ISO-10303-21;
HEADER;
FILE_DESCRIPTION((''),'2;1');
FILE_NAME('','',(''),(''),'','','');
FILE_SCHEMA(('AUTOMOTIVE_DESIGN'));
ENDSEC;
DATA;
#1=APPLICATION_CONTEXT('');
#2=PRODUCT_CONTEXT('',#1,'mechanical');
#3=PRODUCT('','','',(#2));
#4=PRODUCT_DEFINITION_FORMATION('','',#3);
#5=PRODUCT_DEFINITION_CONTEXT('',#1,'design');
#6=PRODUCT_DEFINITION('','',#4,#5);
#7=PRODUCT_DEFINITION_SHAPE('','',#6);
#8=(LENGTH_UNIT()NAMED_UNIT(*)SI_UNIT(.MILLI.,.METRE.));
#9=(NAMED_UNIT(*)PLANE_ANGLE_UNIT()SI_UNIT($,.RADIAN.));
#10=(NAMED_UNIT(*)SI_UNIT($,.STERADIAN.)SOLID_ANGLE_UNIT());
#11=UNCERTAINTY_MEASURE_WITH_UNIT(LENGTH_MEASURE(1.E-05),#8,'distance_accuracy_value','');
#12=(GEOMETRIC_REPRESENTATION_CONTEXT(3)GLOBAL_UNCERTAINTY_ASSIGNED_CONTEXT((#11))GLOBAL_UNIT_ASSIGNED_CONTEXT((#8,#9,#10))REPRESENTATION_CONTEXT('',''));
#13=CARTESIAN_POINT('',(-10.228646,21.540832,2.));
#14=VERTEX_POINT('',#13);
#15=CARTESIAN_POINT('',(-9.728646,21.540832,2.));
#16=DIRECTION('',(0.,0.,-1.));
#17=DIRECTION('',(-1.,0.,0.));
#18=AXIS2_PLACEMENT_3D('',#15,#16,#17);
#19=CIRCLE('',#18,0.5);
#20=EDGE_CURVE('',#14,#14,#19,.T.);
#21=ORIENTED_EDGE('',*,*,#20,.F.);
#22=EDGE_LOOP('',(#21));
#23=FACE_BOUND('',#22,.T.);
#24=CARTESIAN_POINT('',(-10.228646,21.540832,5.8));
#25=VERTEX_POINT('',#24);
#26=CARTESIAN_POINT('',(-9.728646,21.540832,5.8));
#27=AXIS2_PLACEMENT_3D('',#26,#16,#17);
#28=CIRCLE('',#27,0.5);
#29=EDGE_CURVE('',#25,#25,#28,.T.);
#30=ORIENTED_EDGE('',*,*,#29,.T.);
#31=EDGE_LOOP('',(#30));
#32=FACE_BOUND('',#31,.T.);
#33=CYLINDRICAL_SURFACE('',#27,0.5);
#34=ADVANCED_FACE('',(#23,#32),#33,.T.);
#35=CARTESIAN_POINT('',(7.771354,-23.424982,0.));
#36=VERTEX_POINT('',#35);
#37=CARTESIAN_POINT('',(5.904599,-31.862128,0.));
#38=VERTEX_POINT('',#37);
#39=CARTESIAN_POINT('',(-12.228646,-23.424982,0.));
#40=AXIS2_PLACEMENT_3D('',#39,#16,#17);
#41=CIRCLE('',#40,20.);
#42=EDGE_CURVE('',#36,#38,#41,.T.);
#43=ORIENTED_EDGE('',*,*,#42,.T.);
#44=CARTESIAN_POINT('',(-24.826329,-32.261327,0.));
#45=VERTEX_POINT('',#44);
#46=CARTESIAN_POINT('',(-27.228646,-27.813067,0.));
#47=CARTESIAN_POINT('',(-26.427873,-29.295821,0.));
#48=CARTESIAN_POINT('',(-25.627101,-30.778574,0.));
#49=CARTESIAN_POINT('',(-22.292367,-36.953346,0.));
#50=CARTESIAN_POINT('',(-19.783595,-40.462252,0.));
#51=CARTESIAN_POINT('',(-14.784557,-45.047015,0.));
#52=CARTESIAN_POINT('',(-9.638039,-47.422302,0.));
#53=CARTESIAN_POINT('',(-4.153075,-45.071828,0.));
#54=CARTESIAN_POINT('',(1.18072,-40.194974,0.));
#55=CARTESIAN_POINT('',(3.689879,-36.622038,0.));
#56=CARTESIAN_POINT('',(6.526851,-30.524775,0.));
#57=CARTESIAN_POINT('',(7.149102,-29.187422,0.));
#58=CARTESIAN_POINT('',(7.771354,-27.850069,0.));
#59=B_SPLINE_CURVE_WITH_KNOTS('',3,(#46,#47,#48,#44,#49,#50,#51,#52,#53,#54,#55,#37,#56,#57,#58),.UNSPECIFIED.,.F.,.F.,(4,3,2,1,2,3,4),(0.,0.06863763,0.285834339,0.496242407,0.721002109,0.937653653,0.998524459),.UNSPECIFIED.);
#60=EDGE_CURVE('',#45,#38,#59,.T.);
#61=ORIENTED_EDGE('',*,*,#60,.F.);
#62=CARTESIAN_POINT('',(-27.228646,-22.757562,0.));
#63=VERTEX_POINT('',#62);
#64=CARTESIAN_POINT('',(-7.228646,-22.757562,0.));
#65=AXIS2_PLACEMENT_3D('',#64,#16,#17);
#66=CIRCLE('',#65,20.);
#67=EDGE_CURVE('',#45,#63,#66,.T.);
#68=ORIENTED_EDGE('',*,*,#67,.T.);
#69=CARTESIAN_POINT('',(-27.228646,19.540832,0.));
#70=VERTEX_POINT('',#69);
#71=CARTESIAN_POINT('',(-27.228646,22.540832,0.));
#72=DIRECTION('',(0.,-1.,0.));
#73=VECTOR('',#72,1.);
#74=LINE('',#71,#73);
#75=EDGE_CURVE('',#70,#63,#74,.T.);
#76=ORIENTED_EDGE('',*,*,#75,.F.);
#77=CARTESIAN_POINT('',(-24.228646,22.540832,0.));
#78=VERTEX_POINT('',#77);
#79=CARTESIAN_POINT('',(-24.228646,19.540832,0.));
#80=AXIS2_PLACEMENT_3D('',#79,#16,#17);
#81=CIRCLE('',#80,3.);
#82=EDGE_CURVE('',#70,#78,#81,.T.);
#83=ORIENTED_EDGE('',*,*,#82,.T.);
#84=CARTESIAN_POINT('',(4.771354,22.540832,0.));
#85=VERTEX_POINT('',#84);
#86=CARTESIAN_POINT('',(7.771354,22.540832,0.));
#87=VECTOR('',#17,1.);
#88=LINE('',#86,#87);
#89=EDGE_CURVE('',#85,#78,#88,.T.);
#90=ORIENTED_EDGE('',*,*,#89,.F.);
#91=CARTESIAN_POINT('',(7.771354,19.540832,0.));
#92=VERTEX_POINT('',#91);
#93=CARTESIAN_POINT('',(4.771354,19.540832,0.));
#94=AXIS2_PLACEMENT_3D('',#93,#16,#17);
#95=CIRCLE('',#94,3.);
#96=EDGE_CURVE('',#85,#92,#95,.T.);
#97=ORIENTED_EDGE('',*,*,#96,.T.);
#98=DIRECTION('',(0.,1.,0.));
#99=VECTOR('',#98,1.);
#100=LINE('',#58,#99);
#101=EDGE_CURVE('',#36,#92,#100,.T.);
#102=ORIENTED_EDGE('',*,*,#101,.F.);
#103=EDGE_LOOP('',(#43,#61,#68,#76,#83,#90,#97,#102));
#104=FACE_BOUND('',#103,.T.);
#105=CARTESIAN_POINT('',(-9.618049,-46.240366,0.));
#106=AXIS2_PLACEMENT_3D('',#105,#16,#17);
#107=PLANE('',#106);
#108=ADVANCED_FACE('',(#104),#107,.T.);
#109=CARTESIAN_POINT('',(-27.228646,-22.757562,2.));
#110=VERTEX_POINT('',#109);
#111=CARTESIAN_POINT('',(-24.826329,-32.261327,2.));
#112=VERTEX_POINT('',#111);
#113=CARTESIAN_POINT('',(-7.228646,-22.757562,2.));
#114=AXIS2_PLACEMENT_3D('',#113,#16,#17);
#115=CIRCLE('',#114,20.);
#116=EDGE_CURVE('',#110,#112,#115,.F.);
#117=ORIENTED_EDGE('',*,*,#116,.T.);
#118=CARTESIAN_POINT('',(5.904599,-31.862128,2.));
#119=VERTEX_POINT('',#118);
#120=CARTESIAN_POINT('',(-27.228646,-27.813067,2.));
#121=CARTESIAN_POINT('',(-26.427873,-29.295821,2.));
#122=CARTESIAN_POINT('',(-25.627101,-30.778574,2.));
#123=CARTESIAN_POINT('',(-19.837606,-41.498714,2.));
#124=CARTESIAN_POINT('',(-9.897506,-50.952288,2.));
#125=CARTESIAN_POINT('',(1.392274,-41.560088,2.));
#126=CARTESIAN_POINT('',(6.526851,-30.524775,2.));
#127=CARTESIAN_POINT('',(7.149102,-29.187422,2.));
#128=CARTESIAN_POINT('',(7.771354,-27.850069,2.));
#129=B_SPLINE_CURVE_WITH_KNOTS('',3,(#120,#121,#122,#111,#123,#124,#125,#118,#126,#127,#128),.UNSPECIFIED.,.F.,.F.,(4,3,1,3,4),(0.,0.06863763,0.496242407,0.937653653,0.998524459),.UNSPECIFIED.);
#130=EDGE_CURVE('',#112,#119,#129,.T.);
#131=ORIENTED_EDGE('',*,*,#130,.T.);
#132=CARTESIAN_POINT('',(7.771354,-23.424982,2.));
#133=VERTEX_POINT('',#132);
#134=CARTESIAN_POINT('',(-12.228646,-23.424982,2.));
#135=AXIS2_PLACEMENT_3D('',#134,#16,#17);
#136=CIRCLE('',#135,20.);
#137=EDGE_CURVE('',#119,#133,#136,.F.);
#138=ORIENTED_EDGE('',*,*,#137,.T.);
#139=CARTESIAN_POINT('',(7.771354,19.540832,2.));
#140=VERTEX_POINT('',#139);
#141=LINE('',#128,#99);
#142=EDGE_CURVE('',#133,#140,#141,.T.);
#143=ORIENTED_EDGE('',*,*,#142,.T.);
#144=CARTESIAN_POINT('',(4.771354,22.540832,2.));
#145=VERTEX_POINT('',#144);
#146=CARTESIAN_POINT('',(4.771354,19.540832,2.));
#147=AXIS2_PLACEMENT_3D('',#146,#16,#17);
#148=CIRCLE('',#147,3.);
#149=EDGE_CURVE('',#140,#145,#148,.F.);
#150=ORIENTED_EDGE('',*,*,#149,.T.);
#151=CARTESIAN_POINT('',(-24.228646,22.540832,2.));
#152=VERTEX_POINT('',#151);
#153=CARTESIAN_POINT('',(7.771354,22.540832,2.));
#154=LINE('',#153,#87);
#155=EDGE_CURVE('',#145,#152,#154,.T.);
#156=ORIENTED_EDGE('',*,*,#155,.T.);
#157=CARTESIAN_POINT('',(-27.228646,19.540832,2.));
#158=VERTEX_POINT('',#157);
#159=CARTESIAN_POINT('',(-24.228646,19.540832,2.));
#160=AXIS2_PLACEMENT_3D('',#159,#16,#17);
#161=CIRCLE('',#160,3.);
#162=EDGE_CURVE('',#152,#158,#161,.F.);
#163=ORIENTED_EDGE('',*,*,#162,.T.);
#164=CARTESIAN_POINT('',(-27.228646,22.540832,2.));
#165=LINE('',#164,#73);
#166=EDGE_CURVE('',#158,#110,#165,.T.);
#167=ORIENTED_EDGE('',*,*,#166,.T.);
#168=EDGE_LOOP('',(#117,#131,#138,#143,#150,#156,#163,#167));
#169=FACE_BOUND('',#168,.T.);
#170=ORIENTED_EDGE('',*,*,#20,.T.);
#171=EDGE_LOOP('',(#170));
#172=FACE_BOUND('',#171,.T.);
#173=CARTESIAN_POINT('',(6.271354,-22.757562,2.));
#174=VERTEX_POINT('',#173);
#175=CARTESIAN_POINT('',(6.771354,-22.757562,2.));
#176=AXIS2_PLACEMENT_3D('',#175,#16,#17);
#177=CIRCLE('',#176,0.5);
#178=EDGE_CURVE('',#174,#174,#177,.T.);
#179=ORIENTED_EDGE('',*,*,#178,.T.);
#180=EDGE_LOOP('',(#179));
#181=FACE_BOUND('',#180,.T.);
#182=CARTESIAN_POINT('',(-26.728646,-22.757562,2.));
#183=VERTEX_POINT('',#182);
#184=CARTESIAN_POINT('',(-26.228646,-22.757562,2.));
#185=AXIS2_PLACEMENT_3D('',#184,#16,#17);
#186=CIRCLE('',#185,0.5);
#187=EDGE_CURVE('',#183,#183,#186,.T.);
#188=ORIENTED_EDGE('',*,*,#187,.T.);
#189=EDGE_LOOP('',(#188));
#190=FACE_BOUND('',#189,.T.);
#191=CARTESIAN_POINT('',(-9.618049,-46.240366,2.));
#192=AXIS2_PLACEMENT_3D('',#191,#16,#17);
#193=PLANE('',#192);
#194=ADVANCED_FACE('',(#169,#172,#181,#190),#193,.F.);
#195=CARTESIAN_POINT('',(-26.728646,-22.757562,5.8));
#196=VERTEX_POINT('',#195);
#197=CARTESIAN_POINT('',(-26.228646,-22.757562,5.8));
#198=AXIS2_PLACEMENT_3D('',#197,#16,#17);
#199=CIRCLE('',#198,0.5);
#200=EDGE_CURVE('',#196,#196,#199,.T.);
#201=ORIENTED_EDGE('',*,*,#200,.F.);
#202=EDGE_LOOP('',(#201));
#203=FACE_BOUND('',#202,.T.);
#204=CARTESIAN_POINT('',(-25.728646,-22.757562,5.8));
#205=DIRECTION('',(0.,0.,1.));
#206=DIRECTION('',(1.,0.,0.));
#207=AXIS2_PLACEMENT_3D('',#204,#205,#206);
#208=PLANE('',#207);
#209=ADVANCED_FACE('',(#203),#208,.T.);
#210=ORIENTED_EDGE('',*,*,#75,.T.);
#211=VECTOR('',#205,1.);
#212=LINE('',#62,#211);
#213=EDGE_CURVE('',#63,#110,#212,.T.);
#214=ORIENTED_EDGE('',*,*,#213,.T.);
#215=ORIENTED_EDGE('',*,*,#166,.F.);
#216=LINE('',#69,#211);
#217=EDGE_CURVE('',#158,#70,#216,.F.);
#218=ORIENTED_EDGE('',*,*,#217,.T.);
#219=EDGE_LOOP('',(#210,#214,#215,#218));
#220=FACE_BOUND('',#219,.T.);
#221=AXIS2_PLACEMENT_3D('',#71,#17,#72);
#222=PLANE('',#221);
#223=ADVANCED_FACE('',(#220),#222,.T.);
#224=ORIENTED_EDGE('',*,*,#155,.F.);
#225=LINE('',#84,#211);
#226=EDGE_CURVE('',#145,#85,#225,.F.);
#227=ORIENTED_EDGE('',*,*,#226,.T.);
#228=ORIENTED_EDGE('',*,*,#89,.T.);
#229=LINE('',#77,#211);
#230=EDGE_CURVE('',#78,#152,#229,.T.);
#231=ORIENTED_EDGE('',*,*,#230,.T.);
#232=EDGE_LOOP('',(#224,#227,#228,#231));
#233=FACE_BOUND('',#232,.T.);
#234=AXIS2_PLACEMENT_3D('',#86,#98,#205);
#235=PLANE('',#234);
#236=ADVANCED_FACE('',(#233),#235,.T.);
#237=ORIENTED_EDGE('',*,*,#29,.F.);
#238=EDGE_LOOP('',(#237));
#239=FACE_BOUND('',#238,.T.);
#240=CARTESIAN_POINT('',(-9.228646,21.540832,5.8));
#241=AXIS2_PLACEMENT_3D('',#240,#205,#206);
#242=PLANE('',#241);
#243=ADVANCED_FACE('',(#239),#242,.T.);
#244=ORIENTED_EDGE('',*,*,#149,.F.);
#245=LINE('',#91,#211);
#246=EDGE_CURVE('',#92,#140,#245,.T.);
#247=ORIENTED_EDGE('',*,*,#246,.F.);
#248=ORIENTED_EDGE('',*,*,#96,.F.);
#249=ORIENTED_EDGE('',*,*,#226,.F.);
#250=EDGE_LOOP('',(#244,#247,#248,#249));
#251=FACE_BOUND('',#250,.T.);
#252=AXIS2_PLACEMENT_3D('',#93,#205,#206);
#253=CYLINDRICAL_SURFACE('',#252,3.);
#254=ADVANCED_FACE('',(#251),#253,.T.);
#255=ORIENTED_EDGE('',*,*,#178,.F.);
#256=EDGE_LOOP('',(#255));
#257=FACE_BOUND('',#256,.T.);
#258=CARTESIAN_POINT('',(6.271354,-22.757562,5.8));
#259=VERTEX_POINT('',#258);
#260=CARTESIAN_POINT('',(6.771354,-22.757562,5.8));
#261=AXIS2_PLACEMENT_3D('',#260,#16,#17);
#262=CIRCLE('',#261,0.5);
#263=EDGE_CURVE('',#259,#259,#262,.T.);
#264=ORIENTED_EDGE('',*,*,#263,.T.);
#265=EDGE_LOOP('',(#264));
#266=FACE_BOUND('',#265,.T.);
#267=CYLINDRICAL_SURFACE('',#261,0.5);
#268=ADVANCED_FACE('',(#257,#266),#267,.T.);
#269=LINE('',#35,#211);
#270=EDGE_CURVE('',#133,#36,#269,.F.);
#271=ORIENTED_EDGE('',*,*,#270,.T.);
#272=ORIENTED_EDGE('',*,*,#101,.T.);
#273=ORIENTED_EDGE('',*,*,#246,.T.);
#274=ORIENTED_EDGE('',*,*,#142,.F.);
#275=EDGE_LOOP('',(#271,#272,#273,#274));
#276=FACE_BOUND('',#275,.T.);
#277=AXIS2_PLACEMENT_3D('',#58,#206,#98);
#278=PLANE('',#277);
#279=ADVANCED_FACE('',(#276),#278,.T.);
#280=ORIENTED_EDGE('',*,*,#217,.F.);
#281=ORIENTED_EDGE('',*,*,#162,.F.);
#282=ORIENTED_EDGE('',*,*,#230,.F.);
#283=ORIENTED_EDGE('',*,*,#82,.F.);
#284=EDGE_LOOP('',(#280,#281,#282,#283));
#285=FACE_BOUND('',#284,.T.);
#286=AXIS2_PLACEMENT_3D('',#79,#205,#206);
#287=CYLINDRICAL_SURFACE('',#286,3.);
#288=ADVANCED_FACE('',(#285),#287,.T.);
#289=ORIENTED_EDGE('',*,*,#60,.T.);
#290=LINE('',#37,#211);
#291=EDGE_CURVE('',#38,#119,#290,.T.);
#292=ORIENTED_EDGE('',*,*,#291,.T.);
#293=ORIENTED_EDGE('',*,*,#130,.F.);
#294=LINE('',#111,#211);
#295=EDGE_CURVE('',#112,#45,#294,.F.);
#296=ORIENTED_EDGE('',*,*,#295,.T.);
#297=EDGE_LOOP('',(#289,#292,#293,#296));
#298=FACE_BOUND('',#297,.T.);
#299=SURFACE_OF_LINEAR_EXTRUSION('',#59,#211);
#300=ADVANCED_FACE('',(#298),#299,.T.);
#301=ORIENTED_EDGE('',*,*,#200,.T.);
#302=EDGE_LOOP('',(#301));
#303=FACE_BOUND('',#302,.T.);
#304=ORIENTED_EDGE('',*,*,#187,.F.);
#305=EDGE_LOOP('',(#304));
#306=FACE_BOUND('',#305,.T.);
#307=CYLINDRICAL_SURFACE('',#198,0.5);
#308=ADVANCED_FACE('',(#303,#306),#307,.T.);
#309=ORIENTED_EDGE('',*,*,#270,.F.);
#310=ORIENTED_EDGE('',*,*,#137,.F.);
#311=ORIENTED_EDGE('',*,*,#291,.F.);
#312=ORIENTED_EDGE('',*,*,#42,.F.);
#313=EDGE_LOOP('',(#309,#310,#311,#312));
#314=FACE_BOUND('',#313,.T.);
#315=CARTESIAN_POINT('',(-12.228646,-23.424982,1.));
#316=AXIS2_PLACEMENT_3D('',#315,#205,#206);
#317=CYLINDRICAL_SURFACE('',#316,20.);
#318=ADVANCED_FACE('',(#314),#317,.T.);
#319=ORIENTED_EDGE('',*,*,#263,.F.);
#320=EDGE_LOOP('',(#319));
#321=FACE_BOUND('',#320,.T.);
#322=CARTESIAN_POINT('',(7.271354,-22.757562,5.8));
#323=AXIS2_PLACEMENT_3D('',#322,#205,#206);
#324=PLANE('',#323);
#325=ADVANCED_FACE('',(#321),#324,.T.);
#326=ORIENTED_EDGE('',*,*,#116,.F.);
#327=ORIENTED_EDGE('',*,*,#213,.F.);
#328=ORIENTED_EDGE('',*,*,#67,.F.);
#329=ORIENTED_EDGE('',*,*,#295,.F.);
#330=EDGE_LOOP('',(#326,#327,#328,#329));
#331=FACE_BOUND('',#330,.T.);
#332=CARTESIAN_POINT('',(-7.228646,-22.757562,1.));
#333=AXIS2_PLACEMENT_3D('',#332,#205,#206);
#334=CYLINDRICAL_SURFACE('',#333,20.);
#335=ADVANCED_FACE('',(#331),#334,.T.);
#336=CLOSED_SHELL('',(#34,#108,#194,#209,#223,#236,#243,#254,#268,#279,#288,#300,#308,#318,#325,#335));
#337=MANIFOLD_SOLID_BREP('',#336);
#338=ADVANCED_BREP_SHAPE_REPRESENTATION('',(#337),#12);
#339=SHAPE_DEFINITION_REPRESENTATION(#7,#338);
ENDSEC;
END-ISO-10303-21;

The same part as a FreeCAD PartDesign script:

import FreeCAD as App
import Part
import Sketcher
from FreeCAD import Vector


def edges_at(feature, points):
    """Names of the edges that pass closest to the given points."""
    edges = feature.Shape.Edges
    near = lambda p: min(range(len(edges)), key=lambda i: edges[i].distToShape(Part.Vertex(*p))[0])
    return sorted({f"Edge{near(p) + 1}" for p in points})

doc = App.newDocument("Part")
body = doc.addObject("PartDesign::Body", "Body")

# Sketch on XY plane
sketch1 = body.newObject("Sketcher::SketchObject", "Sketch")
sketch1.AttachmentSupport = (doc.getObject("XY_Plane"), [""])
sketch1.MapMode = "FlatFace"
sketch1.AttachmentOffset = App.Placement(Vector(0, 0, 2), App.Rotation())
sketch1.addGeometry([
    Part.LineSegment(Vector(7.771354, 22.540832, 0), Vector(-27.228646, 22.540832, 0)),
    Part.LineSegment(Vector(-27.228646, 22.540832, 0), Vector(-27.228646, -27.813067, 0)),
    Part.BSplineCurve([Vector(-27.228646, -27.813067, 0), Vector(-26.427873, -29.295821, 0), Vector(-25.627101, -30.778574, 0), Vector(-24.826329, -32.261327, 0), Vector(-19.837606, -41.498714, 0), Vector(-9.897506, -50.952288, 0), Vector(1.392274, -41.560088, 0), Vector(5.904599, -31.862128, 0), Vector(6.526851, -30.524775, 0), Vector(7.149102, -29.187422, 0), Vector(7.771354, -27.850069, 0)], [4, 3, 1, 3, 4], [0, 0.06863763, 0.496242407, 0.937653653, 0.998524459], False, 3, [1, 1, 1, 1, 1, 1, 1, 1, 1, 1, 1], False),
    Part.LineSegment(Vector(7.771354, -27.850069, 0), Vector(7.771354, 22.540832, 0)),
], False)
sketch1.addConstraint([
    Sketcher.Constraint("Block", 2),
    Sketcher.Constraint("Coincident", 0, 2, 1, 1),
    Sketcher.Constraint("Coincident", 1, 2, 2, 1),
    Sketcher.Constraint("Coincident", 2, 2, 3, 1),
    Sketcher.Constraint("Coincident", 3, 2, 0, 1),
    Sketcher.Constraint("Horizontal", 0),
    Sketcher.Constraint("Vertical", 1),
    Sketcher.Constraint("Vertical", 3),
    Sketcher.Constraint("DistanceY", 1, 2, 1, 1, 50.3539),
])
pad1 = body.newObject("PartDesign::Pad", "Pad")
pad1.Profile = sketch1
pad1.Length = 2
pad1.Reversed = True

# Sketch on XZ plane
sketch2 = body.newObject("Sketcher::SketchObject", "Sketch001")
sketch2.AttachmentSupport = (doc.getObject("XZ_Plane"), [""])
sketch2.MapMode = "FlatFace"
sketch2.AttachmentOffset = App.Placement(Vector(0, 0, 22.757562), App.Rotation())
sketch2.addGeometry([
    Part.LineSegment(Vector(6.771354, 5.8, 0), Vector(6.771354, 2, 0)),
    Part.LineSegment(Vector(6.771354, 2, 0), Vector(7.271354, 2, 0)),
    Part.LineSegment(Vector(7.271354, 2, 0), Vector(7.271354, 5.8, 0)),
    Part.LineSegment(Vector(7.271354, 5.8, 0), Vector(6.771354, 5.8, 0)),
], False)
sketch2.addGeometry(Part.LineSegment(Vector(6.771354, 5.8, 0), Vector(6.771354, 2, 0)), True)  # axis
sketch2.addConstraint([
    Sketcher.Constraint("Coincident", 0, 2, 1, 1),
    Sketcher.Constraint("Coincident", 1, 2, 2, 1),
    Sketcher.Constraint("Coincident", 2, 2, 3, 1),
    Sketcher.Constraint("Coincident", 3, 2, 0, 1),
    Sketcher.Constraint("Vertical", 0),
    Sketcher.Constraint("Horizontal", 1),
    Sketcher.Constraint("Vertical", 2),
    Sketcher.Constraint("Horizontal", 3),
    Sketcher.Constraint("Vertical", 4),
    Sketcher.Constraint("Coincident", 4, 1, 3, 2),
    Sketcher.Constraint("Horizontal", 1, 2, 4, 2),
    Sketcher.Constraint("DistanceX", 1, 1, 1, 2, 0.5),
    Sketcher.Constraint("DistanceY", 0, 2, 0, 1, 3.8),
    Sketcher.Constraint("DistanceY", -1, 1, 0, 2, 2.0),
    Sketcher.Constraint("DistanceX", -1, 1, 0, 2, 6.771354),
])
revolution = body.newObject("PartDesign::Revolution", "Revolution")
revolution.Profile = sketch2
revolution.ReferenceAxis = (sketch2, ["Axis0"])
revolution.Angle = 360

# Sketch on XZ plane
sketch3 = body.newObject("Sketcher::SketchObject", "Sketch002")
sketch3.AttachmentSupport = (doc.getObject("XZ_Plane"), [""])
sketch3.MapMode = "FlatFace"
sketch3.AttachmentOffset = App.Placement(Vector(0, 0, 22.757562), App.Rotation())
sketch3.addGeometry([
    Part.LineSegment(Vector(-26.228646, 5.8, 0), Vector(-26.228646, 2, 0)),
    Part.LineSegment(Vector(-26.228646, 2, 0), Vector(-25.728646, 2, 0)),
    Part.LineSegment(Vector(-25.728646, 2, 0), Vector(-25.728646, 5.8, 0)),
    Part.LineSegment(Vector(-25.728646, 5.8, 0), Vector(-26.228646, 5.8, 0)),
], False)
sketch3.addGeometry(Part.LineSegment(Vector(-26.228646, 5.8, 0), Vector(-26.228646, 2, 0)), True)  # axis
sketch3.addConstraint([
    Sketcher.Constraint("Coincident", 0, 2, 1, 1),
    Sketcher.Constraint("Coincident", 1, 2, 2, 1),
    Sketcher.Constraint("Coincident", 2, 2, 3, 1),
    Sketcher.Constraint("Coincident", 3, 2, 0, 1),
    Sketcher.Constraint("Vertical", 0),
    Sketcher.Constraint("Horizontal", 1),
    Sketcher.Constraint("Vertical", 2),
    Sketcher.Constraint("Horizontal", 3),
    Sketcher.Constraint("Vertical", 4),
    Sketcher.Constraint("Coincident", 4, 1, 3, 2),
    Sketcher.Constraint("Horizontal", 1, 2, 4, 2),
    Sketcher.Constraint("DistanceX", 1, 1, 1, 2, 0.5),
    Sketcher.Constraint("DistanceY", 0, 2, 0, 1, 3.8),
    Sketcher.Constraint("DistanceY", -1, 1, 0, 2, 2.0),
    Sketcher.Constraint("DistanceX", 0, 2, -1, 1, 26.228646),
])
revolution2 = body.newObject("PartDesign::Revolution", "Revolution001")
revolution2.Profile = sketch3
revolution2.ReferenceAxis = (sketch3, ["Axis0"])
revolution2.Angle = 360

# Sketch on XZ plane
sketch4 = body.newObject("Sketcher::SketchObject", "Sketch003")
sketch4.AttachmentSupport = (doc.getObject("XZ_Plane"), [""])
sketch4.MapMode = "FlatFace"
sketch4.AttachmentOffset = App.Placement(Vector(0, 0, -21.540832), App.Rotation())
sketch4.addGeometry([
    Part.LineSegment(Vector(-9.728646, 5.8, 0), Vector(-9.728646, 2, 0)),
    Part.LineSegment(Vector(-9.728646, 2, 0), Vector(-9.228646, 2, 0)),
    Part.LineSegment(Vector(-9.228646, 2, 0), Vector(-9.228646, 5.8, 0)),
    Part.LineSegment(Vector(-9.228646, 5.8, 0), Vector(-9.728646, 5.8, 0)),
], False)
sketch4.addGeometry(Part.LineSegment(Vector(-9.728646, 5.8, 0), Vector(-9.728646, 2, 0)), True)  # axis
sketch4.addConstraint([
    Sketcher.Constraint("Coincident", 0, 2, 1, 1),
    Sketcher.Constraint("Coincident", 1, 2, 2, 1),
    Sketcher.Constraint("Coincident", 2, 2, 3, 1),
    Sketcher.Constraint("Coincident", 3, 2, 0, 1),
    Sketcher.Constraint("Vertical", 0),
    Sketcher.Constraint("Horizontal", 1),
    Sketcher.Constraint("Vertical", 2),
    Sketcher.Constraint("Horizontal", 3),
    Sketcher.Constraint("Vertical", 4),
    Sketcher.Constraint("Coincident", 4, 1, 3, 2),
    Sketcher.Constraint("Horizontal", 1, 2, 4, 2),
    Sketcher.Constraint("DistanceX", 1, 1, 1, 2, 0.5),
    Sketcher.Constraint("DistanceY", 0, 2, 0, 1, 3.8),
    Sketcher.Constraint("DistanceY", -1, 1, 0, 2, 2.0),
    Sketcher.Constraint("DistanceX", 0, 2, -1, 1, 9.728646),
])
revolution3 = body.newObject("PartDesign::Revolution", "Revolution002")
revolution3.Profile = sketch4
revolution3.ReferenceAxis = (sketch4, ["Axis0"])
revolution3.Angle = 360
doc.recompute()

fillet = body.newObject("PartDesign::Fillet", "Fillet")
fillet.Base = (revolution3, edges_at(revolution3, [(-27.229, 22.541, 1), (7.771, 22.541, 1)]))
fillet.Radius = 3
doc.recompute()

fillet2 = body.newObject("PartDesign::Fillet", "Fillet001")
fillet2.Base = (fillet, edges_at(fillet, [(7.771, -27.85, 1), (-27.229, -27.813, 1)]))
fillet2.Radius = 20

doc.recompute()
